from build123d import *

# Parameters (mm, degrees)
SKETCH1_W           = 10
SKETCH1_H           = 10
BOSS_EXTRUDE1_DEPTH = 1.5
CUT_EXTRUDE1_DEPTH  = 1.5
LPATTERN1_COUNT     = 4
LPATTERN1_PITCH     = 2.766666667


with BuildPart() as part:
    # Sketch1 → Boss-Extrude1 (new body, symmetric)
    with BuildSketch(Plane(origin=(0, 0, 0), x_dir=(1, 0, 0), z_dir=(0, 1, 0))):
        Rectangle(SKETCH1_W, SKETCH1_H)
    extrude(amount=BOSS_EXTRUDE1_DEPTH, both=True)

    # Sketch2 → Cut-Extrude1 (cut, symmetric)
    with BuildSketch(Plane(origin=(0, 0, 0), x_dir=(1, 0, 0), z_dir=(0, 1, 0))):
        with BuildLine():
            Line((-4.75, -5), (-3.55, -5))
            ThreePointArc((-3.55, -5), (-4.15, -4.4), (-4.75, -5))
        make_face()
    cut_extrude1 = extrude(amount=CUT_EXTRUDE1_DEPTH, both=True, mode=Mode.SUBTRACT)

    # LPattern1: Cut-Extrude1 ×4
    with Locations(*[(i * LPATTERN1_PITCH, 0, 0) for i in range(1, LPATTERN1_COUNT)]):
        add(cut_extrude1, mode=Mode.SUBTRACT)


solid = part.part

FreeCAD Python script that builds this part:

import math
import FreeCAD as App
import Part
import Sketcher
from FreeCAD import Vector

doc = App.newDocument("Part")
body = doc.addObject("PartDesign::Body", "Body")

sketch1 = body.newObject("Sketcher::SketchObject", "Sketch")
sketch1.AttachmentSupport = (doc.getObject("XZ_Plane"), [""])
sketch1.MapMode = "FlatFace"
sketch1.addGeometry([
    Part.LineSegment(Vector(-5, -5, 0), Vector(-5, 5, 0)),
    Part.LineSegment(Vector(-5, 5, 0), Vector(5, 5, 0)),
    Part.LineSegment(Vector(5, 5, 0), Vector(5, -5, 0)),
    Part.LineSegment(Vector(5, -5, 0), Vector(-5, -5, 0)),
], False)
sketch1.addConstraint([
    Sketcher.Constraint("Coincident", 0, 2, 1, 1),
    Sketcher.Constraint("Coincident", 1, 2, 2, 1),
    Sketcher.Constraint("Coincident", 2, 2, 3, 1),
    Sketcher.Constraint("Coincident", 3, 2, 0, 1),
    Sketcher.Constraint("Vertical", 0),
    Sketcher.Constraint("Horizontal", 1),
    Sketcher.Constraint("Vertical", 2),
    Sketcher.Constraint("Horizontal", 3),
    Sketcher.Constraint("Symmetric", 0, 2, 2, 2, -1, 1),
    Sketcher.Constraint("Equal", 3, 0),
    Sketcher.Constraint("DistanceX", 1, 1, 1, 2, 10.0),
])
pad1 = body.newObject("PartDesign::Pad", "Pad")
pad1.Profile = sketch1
pad1.Length = 3
pad1.Midplane = True

sketch2 = body.newObject("Sketcher::SketchObject", "Sketch001")
sketch2.AttachmentSupport = (doc.getObject("XZ_Plane"), [""])
sketch2.MapMode = "FlatFace"
sketch2.addGeometry([
    Part.LineSegment(Vector(-4.8, 5, 0), Vector(-3.5, 5, 0)),
    Part.ArcOfCircle(Part.Circle(Vector(-4.2, 5, 0), Vector(0, 0, 1), 0.6), math.radians(180), math.radians(360)),
], False)
sketch2.addConstraint([
    Sketcher.Constraint("Coincident", 0, 1, 1, 1),
    Sketcher.Constraint("Coincident", 1, 2, 0, 2),
    Sketcher.Constraint("Horizontal", 0),
    Sketcher.Constraint("Horizontal", 1, 3, 0, 1),
    Sketcher.Constraint("Radius", 1, 0.6),
    Sketcher.Constraint("DistanceY", -1, 1, 1, 3, 5.0),
    Sketcher.Constraint("DistanceX", 1, 3, -1, 1, 4.15),
])
pocket1 = body.newObject("PartDesign::Pocket", "Pocket")
pocket1.Profile = sketch2
pocket1.Length = 3
pocket1.Midplane = True
doc.recompute()

linearpattern = body.newObject("PartDesign::LinearPattern", "LinearPattern")
linearpattern.Originals = [pocket1]
linearpattern.Direction = (doc.getObject("X_Axis"), [""])
linearpattern.Mode = "offset"
linearpattern.Offset = 2.766667
linearpattern.Occurrences = 4
body.Tip = linearpattern

doc.recompute()
